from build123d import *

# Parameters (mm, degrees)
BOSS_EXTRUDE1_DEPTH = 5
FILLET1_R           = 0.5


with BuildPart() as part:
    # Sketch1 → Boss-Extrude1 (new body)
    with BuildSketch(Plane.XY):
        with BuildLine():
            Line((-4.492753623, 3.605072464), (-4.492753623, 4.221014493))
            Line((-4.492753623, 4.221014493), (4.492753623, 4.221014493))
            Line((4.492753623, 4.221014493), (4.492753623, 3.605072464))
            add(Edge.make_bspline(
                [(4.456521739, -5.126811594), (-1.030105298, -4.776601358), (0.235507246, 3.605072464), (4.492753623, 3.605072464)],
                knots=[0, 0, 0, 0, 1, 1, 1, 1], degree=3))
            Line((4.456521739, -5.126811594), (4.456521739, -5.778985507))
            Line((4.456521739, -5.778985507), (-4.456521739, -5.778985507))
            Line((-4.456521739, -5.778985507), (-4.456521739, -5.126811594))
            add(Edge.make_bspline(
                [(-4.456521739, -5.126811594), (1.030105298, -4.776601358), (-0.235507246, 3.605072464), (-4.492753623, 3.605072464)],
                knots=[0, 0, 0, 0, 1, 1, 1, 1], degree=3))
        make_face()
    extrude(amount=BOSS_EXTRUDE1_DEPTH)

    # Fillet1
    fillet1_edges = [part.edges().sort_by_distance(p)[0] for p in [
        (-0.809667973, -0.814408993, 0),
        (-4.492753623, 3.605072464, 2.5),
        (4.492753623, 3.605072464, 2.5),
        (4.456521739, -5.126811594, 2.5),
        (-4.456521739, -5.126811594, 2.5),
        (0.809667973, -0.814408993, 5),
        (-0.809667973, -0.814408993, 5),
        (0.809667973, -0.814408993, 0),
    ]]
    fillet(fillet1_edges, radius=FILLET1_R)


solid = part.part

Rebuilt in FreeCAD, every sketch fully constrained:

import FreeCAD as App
import Part
import Sketcher
from FreeCAD import Vector


def edges_at(feature, points):
    """Names of the edges that pass closest to the given points."""
    edges = feature.Shape.Edges
    near = lambda p: min(range(len(edges)), key=lambda i: edges[i].distToShape(Part.Vertex(*p))[0])
    return sorted({f"Edge{near(p) + 1}" for p in points})

doc = App.newDocument("Part")
body = doc.addObject("PartDesign::Body", "Body")

sketch1 = body.newObject("Sketcher::SketchObject", "Sketch")
sketch1.AttachmentSupport = (doc.getObject("XY_Plane"), [""])
sketch1.MapMode = "FlatFace"
sketch1.addGeometry([
    Part.LineSegment(Vector(-4.492754, 4.221014, 0), Vector(-4.492754, 3.605072, 0)),
    Part.BSplineCurve([Vector(-4.456522, -5.126812, 0), Vector(1.030105, -4.776601, 0), Vector(-0.235507, 3.605072, 0), Vector(-4.492754, 3.605072, 0)], [4, 4], [0, 1], False, 3, [1, 1, 1, 1], False),
    Part.LineSegment(Vector(-4.456522, -5.126812, 0), Vector(-4.456522, -5.778986, 0)),
    Part.LineSegment(Vector(-4.456522, -5.778986, 0), Vector(4.456522, -5.778986, 0)),
    Part.LineSegment(Vector(4.456522, -5.778986, 0), Vector(4.456522, -5.126812, 0)),
    Part.BSplineCurve([Vector(4.456522, -5.126812, 0), Vector(-1.030105, -4.776601, 0), Vector(0.235507, 3.605072, 0), Vector(4.492754, 3.605072, 0)], [4, 4], [0, 1], False, 3, [1, 1, 1, 1], False),
    Part.LineSegment(Vector(4.492754, 3.605072, 0), Vector(4.492754, 4.221014, 0)),
    Part.LineSegment(Vector(4.492754, 4.221014, 0), Vector(-4.492754, 4.221014, 0)),
], False)
sketch1.addConstraint([
    Sketcher.Constraint("Block", 1),
    Sketcher.Constraint("Block", 5),
    Sketcher.Constraint("Coincident", 0, 2, 1, 2),
    Sketcher.Constraint("Coincident", 1, 1, 2, 1),
    Sketcher.Constraint("Coincident", 2, 2, 3, 1),
    Sketcher.Constraint("Coincident", 3, 2, 4, 1),
    Sketcher.Constraint("Coincident", 4, 2, 5, 1),
    Sketcher.Constraint("Coincident", 5, 2, 6, 1),
    Sketcher.Constraint("Coincident", 6, 2, 7, 1),
    Sketcher.Constraint("Coincident", 7, 2, 0, 1),
    Sketcher.Constraint("Vertical", 0),
    Sketcher.Constraint("Vertical", 2),
    Sketcher.Constraint("Horizontal", 3),
    Sketcher.Constraint("Vertical", 4),
    Sketcher.Constraint("Vertical", 6),
    Sketcher.Constraint("Horizontal", 7),
    Sketcher.Constraint("DistanceY", 3, 2, 6, 2, 10.0),
    Sketcher.Constraint("DistanceY", 0, 2, 0, 1, 0.615942),
])
pad1 = body.newObject("PartDesign::Pad", "Pad")
pad1.Profile = sketch1
pad1.Length = 5
doc.recompute()

fillet = body.newObject("PartDesign::Fillet", "Fillet")
fillet.Base = (pad1, edges_at(pad1, [
    (-0.81, -0.814, 0),
    (-4.493, 3.605, 2.5),
    (4.493, 3.605, 2.5),
    (4.457, -5.127, 2.5),
    (-4.457, -5.127, 2.5),
    (0.81, -0.814, 5),
    (-0.81, -0.814, 5),
    (0.81, -0.814, 0),
]))
fillet.Radius = 0.5

doc.recompute()
